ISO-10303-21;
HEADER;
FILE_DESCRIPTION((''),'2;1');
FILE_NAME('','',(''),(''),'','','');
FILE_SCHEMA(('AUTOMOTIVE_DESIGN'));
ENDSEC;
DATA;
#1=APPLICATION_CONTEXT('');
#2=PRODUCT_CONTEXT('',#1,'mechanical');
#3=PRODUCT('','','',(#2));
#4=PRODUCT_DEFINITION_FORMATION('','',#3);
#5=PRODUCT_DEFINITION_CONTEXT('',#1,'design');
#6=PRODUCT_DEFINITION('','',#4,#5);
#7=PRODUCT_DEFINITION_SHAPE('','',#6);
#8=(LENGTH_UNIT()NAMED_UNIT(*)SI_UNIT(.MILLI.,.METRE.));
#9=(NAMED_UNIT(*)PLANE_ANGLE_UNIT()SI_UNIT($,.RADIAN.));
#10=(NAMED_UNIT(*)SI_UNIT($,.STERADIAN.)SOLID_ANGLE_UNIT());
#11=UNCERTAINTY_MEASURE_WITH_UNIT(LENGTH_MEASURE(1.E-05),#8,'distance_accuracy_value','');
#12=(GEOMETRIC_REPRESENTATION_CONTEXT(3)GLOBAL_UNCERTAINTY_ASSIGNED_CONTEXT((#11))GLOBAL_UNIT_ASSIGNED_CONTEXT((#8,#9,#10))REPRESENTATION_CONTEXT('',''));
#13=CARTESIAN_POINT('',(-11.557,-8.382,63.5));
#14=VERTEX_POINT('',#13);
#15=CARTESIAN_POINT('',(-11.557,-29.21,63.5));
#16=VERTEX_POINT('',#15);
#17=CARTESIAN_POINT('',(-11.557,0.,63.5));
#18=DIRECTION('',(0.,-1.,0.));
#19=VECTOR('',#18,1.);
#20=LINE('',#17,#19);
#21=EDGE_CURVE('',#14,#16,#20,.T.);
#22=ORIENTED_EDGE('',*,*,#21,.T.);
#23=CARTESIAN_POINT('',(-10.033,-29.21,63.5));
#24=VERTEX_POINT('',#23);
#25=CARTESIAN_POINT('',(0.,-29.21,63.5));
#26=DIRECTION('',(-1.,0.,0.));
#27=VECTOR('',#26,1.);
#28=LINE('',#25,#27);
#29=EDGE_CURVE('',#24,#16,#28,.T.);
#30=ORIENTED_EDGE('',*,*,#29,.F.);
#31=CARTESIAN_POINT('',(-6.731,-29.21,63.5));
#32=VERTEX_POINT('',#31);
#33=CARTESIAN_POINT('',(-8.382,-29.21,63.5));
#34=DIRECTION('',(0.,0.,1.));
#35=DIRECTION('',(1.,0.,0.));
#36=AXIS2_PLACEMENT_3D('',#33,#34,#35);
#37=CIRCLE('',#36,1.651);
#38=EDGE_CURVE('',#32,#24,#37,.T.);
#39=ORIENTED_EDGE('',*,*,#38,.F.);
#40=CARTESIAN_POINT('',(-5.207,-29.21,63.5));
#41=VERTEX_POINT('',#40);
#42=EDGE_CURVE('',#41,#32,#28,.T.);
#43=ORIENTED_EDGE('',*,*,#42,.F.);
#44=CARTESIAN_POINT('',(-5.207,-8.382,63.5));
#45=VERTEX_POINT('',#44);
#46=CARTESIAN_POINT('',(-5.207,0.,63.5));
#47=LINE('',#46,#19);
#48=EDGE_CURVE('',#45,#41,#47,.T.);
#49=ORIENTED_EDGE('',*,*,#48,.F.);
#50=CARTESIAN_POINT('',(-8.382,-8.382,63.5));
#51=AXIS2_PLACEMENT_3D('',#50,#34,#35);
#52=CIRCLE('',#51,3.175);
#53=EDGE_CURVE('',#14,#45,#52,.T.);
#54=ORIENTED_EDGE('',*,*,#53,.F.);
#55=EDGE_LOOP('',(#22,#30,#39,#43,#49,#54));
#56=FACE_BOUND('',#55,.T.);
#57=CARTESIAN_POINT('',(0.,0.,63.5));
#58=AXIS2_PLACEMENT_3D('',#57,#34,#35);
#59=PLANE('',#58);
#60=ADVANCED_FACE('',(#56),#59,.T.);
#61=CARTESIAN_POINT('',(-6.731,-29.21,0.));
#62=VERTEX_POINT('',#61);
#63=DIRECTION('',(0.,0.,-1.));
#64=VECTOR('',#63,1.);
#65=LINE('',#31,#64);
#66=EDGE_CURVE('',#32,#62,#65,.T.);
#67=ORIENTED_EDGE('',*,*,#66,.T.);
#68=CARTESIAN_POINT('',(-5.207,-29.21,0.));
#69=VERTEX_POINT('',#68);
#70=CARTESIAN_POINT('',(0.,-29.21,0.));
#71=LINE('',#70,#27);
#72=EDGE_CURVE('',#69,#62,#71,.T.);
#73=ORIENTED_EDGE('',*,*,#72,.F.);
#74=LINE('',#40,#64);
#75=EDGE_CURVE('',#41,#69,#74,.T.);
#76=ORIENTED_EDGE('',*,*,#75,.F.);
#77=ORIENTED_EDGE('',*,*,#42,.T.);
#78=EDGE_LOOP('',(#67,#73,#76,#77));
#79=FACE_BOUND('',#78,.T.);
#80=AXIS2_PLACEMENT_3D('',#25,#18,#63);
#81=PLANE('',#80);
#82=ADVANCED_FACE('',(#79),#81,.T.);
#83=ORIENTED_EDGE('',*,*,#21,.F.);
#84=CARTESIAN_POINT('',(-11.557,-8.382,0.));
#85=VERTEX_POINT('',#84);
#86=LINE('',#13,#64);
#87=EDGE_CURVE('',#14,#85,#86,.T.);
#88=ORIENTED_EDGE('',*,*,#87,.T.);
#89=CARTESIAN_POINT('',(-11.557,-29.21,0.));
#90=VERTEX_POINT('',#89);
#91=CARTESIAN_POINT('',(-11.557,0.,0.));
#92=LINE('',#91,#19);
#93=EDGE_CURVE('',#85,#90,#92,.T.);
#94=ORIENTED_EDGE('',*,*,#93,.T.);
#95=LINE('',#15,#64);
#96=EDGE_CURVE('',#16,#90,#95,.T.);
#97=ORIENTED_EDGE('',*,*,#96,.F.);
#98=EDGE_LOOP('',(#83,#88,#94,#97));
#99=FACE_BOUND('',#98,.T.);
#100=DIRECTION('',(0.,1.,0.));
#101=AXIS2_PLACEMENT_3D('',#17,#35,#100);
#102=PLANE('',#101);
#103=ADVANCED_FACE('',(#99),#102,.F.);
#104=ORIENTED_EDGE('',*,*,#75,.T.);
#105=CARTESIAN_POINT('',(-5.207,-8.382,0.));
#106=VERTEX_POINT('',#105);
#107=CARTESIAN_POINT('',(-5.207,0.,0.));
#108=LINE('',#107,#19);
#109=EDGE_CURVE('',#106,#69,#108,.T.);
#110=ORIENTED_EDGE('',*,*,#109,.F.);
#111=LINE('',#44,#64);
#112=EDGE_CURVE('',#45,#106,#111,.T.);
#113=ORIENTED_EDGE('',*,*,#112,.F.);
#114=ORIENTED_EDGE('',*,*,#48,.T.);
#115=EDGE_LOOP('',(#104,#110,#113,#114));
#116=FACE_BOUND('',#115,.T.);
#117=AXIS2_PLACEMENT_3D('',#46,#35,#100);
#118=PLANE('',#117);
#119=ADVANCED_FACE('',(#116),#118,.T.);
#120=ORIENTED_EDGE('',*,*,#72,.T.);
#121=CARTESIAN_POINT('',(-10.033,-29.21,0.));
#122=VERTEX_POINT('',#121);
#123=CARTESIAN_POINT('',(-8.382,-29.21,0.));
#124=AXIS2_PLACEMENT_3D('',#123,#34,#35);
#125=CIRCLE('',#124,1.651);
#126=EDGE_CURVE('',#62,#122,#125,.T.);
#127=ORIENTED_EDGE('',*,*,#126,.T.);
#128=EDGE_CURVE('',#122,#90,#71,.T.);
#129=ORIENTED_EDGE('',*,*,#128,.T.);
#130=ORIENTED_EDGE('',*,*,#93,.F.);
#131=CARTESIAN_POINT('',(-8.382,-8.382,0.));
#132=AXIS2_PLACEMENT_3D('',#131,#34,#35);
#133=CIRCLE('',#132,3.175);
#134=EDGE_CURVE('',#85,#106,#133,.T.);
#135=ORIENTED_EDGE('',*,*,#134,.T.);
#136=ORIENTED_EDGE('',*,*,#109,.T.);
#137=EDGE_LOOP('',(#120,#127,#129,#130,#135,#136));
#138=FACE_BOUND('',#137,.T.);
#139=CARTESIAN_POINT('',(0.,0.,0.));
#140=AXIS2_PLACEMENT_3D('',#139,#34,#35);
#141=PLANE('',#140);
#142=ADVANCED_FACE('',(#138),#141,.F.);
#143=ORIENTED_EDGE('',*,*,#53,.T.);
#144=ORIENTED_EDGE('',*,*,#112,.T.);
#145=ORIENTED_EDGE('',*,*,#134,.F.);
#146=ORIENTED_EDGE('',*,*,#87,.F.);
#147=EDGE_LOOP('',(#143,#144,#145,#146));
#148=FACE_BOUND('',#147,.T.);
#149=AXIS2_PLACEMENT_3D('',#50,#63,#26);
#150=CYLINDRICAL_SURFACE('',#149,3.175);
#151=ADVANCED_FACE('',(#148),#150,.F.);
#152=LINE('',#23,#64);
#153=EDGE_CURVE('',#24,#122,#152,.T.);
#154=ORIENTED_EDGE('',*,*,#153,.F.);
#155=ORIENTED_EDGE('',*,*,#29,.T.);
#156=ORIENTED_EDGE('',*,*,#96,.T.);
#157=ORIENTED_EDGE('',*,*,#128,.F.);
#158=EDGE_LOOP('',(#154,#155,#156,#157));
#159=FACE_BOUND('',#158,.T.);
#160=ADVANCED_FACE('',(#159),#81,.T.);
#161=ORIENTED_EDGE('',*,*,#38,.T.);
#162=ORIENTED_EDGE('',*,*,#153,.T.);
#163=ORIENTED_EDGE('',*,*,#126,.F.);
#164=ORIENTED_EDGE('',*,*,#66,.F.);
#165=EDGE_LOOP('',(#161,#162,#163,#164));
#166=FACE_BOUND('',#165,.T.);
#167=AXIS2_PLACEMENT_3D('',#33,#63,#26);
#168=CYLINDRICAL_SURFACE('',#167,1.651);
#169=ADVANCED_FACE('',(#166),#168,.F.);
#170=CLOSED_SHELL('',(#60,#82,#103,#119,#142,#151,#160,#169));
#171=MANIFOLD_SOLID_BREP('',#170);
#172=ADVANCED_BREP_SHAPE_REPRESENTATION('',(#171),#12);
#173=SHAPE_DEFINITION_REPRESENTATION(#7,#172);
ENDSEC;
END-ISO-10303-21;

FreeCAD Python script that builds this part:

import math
import FreeCAD as App
import Part
import Sketcher

V = App.Vector
Q = App.Units.Quantity

doc = App.newDocument("Part")
params = doc.addObject("Spreadsheet::Sheet", "Params")
for row, (alias, value) in enumerate([
    ("sketch1_radius", "0.125 in"),
    ("sketch1_radius2", "0.065 in"),
    ("sketch1_height", "0.82 in"),
    ("pad1_length", "2.5 in"),
], start=1):
    params.set(f"A{row}", alias)
    params.set(f"B{row}", "=" + value)
    params.setAlias(f"B{row}", alias)

body = doc.addObject("PartDesign::Body", "Body")

# Sketch on XY plane
sketch1 = doc.addObject("Sketcher::SketchObject", "Sketch")
body.addObject(sketch1)
sketch1.AttachmentSupport = (doc.XY_Plane, [""])
sketch1.MapMode = "FlatFace"
sketch1.addGeometry(Part.LineSegment(V(-5.2, -29.2, 0), V(-5.2, -8.4, 0)), False)
sketch1.addGeometry(Part.ArcOfCircle(Part.Circle(V(-8.4, -8.4, 0), V(0, 0, 1), 3.2), math.radians(180), math.radians(360)), False)
sketch1.addGeometry(Part.LineSegment(V(-11.6, -8.4, 0), V(-11.6, -29.2, 0)), False)
sketch1.addGeometry(Part.LineSegment(V(-11.6, -29.2, 0), V(-10, -29.2, 0)), False)
sketch1.addGeometry(Part.ArcOfCircle(Part.Circle(V(-8.4, -29.2, 0), V(0, 0, 1), 1.7), math.radians(0), math.radians(180)), False)
sketch1.addGeometry(Part.LineSegment(V(-6.7, -29.2, 0), V(-5.2, -29.2, 0)), False)
sketch1.addConstraint(Sketcher.Constraint("Tangent", 0, 2, 1, 2))
sketch1.addConstraint(Sketcher.Constraint("Tangent", 1, 1, 2, 1))
sketch1.addConstraint(Sketcher.Constraint("Coincident", 2, 2, 3, 1))
sketch1.addConstraint(Sketcher.Constraint("Coincident", 3, 2, 4, 2))
sketch1.addConstraint(Sketcher.Constraint("Coincident", 4, 1, 5, 1))
sketch1.addConstraint(Sketcher.Constraint("Coincident", 5, 2, 0, 1))
sketch1.addConstraint(Sketcher.Constraint("Vertical", 0))
sketch1.addConstraint(Sketcher.Constraint("Vertical", 2))
sketch1.addConstraint(Sketcher.Constraint("Horizontal", 3))
sketch1.addConstraint(Sketcher.Constraint("Horizontal", 5))
sketch1.addConstraint(Sketcher.Constraint("Horizontal", 4, 3, 2, 2))
sketch1.addConstraint(Sketcher.Constraint("Horizontal", 3, 2, 4, 1))
sketch1.addConstraint(Sketcher.Constraint("Vertical", 1, 3, 4, 3))
sketch1.addConstraint(Sketcher.Constraint("Radius", 1, Q("0.125 in")))
sketch1.addConstraint(Sketcher.Constraint("Radius", 4, Q("0.065 in")))
sketch1.addConstraint(Sketcher.Constraint("DistanceY", 0, 1, 0, 2, Q("0.82 in")))
sketch1.addConstraint(Sketcher.Constraint("DistanceX", 1, 3, -1, 1, Q("0.33 in")))
sketch1.addConstraint(Sketcher.Constraint("DistanceY", 1, 3, -1, 1, Q("0.33 in")))
sketch1.setExpression("Constraints[13]", "Params.sketch1_radius")
sketch1.setExpression("Constraints[14]", "Params.sketch1_radius2")
sketch1.setExpression("Constraints[15]", "Params.sketch1_height")
pad1 = doc.addObject("PartDesign::Pad", "Pad")
body.addObject(pad1)
pad1.Profile = sketch1
pad1.setExpression("Length", "Params.pad1_length")

doc.recompute()
